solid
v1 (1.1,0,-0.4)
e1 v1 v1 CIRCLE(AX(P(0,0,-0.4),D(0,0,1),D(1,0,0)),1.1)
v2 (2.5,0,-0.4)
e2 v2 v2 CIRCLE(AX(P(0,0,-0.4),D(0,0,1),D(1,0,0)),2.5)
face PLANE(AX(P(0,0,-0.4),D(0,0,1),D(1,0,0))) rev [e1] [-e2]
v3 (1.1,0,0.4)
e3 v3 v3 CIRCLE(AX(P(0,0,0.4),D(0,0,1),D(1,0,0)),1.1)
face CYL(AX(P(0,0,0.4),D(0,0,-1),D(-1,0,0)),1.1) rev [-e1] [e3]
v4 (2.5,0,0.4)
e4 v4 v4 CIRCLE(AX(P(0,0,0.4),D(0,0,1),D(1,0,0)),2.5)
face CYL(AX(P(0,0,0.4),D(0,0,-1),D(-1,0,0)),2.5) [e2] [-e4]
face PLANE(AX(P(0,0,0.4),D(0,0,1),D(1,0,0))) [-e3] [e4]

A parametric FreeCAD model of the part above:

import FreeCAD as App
import Part
import Sketcher

V = App.Vector
Q = App.Units.Quantity

doc = App.newDocument("Part")
body = doc.addObject("PartDesign::Body", "Body")

# Sketch on XY plane
sketch1 = doc.addObject("Sketcher::SketchObject", "Sketch")
body.addObject(sketch1)
sketch1.AttachmentSupport = (doc.XY_Plane, [""])
sketch1.MapMode = "FlatFace"
sketch1.addGeometry([
    Part.Circle(V(0, 0, 0), V(0, 0, 1), 2.5),
    Part.Circle(V(0, 0, 0), V(0, 0, 1), 1.1),
], False)
sketch1.addConstraint([
    Sketcher.Constraint("Coincident", 0, 3, -1, 1),
    Sketcher.Constraint("Coincident", 1, 3, -1, 1),
    Sketcher.Constraint("Diameter", 0, Q("5 mm")),
    Sketcher.Constraint("Diameter", 1, Q("2.2 mm")),
])
pad1 = doc.addObject("PartDesign::Pad", "Pad")
body.addObject(pad1)
pad1.Profile = sketch1
pad1.Length = 0.8
pad1.Midplane = True

doc.recompute()
